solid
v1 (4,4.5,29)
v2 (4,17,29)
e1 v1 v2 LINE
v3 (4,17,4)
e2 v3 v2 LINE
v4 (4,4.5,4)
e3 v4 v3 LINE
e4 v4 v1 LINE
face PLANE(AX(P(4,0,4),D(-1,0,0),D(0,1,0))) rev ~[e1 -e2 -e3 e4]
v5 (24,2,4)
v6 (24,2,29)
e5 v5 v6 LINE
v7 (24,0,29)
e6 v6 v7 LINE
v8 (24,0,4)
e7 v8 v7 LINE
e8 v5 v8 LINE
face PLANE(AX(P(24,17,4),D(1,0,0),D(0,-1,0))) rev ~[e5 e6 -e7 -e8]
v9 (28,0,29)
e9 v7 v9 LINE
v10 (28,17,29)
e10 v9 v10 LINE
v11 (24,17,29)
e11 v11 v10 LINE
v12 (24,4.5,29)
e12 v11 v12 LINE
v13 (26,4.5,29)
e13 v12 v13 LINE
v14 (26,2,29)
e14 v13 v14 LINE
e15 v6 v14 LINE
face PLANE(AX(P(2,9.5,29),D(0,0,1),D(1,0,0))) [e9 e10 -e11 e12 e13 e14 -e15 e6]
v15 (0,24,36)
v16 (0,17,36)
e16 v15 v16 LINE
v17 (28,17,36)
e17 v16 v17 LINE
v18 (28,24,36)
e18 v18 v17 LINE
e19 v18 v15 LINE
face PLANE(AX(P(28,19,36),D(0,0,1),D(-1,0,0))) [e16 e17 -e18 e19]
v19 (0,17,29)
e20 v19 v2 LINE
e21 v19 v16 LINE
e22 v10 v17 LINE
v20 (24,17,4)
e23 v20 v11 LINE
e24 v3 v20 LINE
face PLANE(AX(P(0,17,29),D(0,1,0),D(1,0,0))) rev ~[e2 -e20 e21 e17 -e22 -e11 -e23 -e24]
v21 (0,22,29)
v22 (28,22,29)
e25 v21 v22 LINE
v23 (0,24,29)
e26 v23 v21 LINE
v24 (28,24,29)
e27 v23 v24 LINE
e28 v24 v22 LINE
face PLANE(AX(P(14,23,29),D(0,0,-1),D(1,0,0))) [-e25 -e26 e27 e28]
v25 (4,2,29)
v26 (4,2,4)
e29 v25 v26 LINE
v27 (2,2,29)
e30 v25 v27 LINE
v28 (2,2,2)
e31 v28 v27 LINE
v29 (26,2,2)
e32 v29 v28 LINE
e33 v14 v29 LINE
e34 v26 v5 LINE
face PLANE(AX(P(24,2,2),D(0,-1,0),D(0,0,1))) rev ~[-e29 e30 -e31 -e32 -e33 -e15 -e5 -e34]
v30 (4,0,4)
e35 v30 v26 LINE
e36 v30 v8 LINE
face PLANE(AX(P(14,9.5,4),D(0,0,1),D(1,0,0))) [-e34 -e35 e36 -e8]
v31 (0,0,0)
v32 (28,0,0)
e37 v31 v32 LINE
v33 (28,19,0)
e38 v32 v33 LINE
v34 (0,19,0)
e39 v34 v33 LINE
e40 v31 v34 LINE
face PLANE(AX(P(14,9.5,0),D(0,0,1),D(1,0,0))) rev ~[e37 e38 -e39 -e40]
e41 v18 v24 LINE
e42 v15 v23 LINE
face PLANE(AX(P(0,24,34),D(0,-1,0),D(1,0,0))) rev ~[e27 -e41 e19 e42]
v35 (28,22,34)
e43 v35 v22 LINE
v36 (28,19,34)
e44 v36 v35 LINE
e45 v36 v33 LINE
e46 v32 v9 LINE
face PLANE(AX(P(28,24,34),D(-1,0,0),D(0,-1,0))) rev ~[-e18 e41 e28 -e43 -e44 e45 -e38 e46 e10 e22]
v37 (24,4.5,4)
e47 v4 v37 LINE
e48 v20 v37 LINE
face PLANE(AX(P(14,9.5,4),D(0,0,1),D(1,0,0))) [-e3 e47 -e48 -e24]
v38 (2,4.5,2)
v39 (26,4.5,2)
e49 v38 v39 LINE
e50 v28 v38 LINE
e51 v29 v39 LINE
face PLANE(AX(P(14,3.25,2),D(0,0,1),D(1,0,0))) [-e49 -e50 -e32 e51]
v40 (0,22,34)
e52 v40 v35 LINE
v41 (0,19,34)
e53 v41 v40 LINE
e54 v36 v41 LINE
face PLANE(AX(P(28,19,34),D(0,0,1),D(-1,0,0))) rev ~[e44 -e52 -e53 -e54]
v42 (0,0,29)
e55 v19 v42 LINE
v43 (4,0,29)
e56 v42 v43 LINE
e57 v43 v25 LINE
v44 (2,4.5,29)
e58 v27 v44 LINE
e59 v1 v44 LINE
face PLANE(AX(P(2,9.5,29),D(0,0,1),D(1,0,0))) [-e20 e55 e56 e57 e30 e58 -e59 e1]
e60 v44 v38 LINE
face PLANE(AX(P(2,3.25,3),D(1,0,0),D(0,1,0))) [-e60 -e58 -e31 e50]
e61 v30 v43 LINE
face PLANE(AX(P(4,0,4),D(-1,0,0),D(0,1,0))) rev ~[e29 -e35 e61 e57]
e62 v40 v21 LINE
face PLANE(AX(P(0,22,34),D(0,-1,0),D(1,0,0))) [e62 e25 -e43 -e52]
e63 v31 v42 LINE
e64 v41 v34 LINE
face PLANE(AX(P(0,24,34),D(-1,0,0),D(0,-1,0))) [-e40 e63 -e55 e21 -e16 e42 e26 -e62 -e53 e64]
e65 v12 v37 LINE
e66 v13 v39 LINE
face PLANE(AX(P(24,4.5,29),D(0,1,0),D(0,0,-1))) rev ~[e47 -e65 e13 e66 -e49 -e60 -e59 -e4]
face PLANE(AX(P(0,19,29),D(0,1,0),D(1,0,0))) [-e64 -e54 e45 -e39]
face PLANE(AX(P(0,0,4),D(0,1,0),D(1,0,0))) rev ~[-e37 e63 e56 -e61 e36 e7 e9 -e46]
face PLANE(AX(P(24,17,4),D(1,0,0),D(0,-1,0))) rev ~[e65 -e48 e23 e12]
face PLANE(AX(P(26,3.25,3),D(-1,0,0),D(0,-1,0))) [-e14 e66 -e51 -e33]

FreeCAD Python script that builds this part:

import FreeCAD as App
import Part
import Sketcher
from FreeCAD import Vector
Q = App.Units.Quantity

doc = App.newDocument("Part")
body = doc.addObject("PartDesign::Body", "Body")

sketch1 = body.newObject("Sketcher::SketchObject", "Sketch")
sketch1.AttachmentSupport = (doc.getObject("XY_Plane"), [""])
sketch1.MapMode = "FlatFace"
sketch1.addGeometry(Part.LineSegment(Vector(0, 19, 0), Vector(0, 0, 0)), False)
sketch1.addGeometry(Part.LineSegment(Vector(0, 0, 0), Vector(28, 0, 0)), False)
sketch1.addGeometry(Part.LineSegment(Vector(28, 0, 0), Vector(28, 19, 0)), False)
sketch1.addGeometry(Part.LineSegment(Vector(28, 19, 0), Vector(0, 19, 0)), False)
sketch1.addConstraint(Sketcher.Constraint("Coincident", 0, 2, 1, 1))
sketch1.addConstraint(Sketcher.Constraint("Coincident", 1, 2, 2, 1))
sketch1.addConstraint(Sketcher.Constraint("Coincident", 2, 2, 3, 1))
sketch1.addConstraint(Sketcher.Constraint("Coincident", 3, 2, 0, 1))
sketch1.addConstraint(Sketcher.Constraint("Vertical", 0))
sketch1.addConstraint(Sketcher.Constraint("Horizontal", 1))
sketch1.addConstraint(Sketcher.Constraint("Vertical", 2))
sketch1.addConstraint(Sketcher.Constraint("Horizontal", 3))
sketch1.addConstraint(Sketcher.Constraint("Coincident", 0, 2, -1, 1))
sketch1.addConstraint(Sketcher.Constraint("DistanceX", 1, 1, 1, 2, Q("28 mm")))
sketch1.addConstraint(Sketcher.Constraint("DistanceY", 0, 2, 0, 1, Q("19 mm")))
pad1 = body.newObject("PartDesign::Pad", "Pad")
pad1.Profile = sketch1
pad1.Length = 4

sketch2 = body.newObject("Sketcher::SketchObject", "Sketch001")
sketch2.AttachmentSupport = (doc.getObject("XY_Plane"), [""])
sketch2.MapMode = "FlatFace"
sketch2.AttachmentOffset = App.Placement(Vector(0, 0, 4), App.Rotation())
sketch2.addGeometry(Part.LineSegment(Vector(0, 19, 0), Vector(0, 0, 0)), False)
sketch2.addGeometry(Part.LineSegment(Vector(0, 0, 0), Vector(4, 0, 0)), False)
sketch2.addGeometry(Part.LineSegment(Vector(4, 0, 0), Vector(4, 17, 0)), False)
sketch2.addGeometry(Part.LineSegment(Vector(4, 17, 0), Vector(24, 17, 0)), False)
sketch2.addGeometry(Part.LineSegment(Vector(24, 17, 0), Vector(24, 0, 0)), False)
sketch2.addGeometry(Part.LineSegment(Vector(24, 0, 0), Vector(28, 0, 0)), False)
sketch2.addGeometry(Part.LineSegment(Vector(28, 0, 0), Vector(28, 19, 0)), False)
sketch2.addGeometry(Part.LineSegment(Vector(28, 19, 0), Vector(0, 19, 0)), False)
sketch2.addConstraint(Sketcher.Constraint("Coincident", 0, 2, 1, 1))
sketch2.addConstraint(Sketcher.Constraint("Coincident", 1, 2, 2, 1))
sketch2.addConstraint(Sketcher.Constraint("Coincident", 2, 2, 3, 1))
sketch2.addConstraint(Sketcher.Constraint("Coincident", 3, 2, 4, 1))
sketch2.addConstraint(Sketcher.Constraint("Coincident", 4, 2, 5, 1))
sketch2.addConstraint(Sketcher.Constraint("Coincident", 5, 2, 6, 1))
sketch2.addConstraint(Sketcher.Constraint("Coincident", 6, 2, 7, 1))
sketch2.addConstraint(Sketcher.Constraint("Coincident", 7, 2, 0, 1))
sketch2.addConstraint(Sketcher.Constraint("Vertical", 0))
sketch2.addConstraint(Sketcher.Constraint("Horizontal", 1))
sketch2.addConstraint(Sketcher.Constraint("Vertical", 2))
sketch2.addConstraint(Sketcher.Constraint("Horizontal", 3))
sketch2.addConstraint(Sketcher.Constraint("Vertical", 4))
sketch2.addConstraint(Sketcher.Constraint("Horizontal", 5))
sketch2.addConstraint(Sketcher.Constraint("Vertical", 6))
sketch2.addConstraint(Sketcher.Constraint("Horizontal", 7))
sketch2.addConstraint(Sketcher.Constraint("Coincident", 0, 2, -1, 1))
sketch2.addConstraint(Sketcher.Constraint("PointOnObject", 4, 2, -1))
sketch2.addConstraint(Sketcher.Constraint("Equal", 1, 5))
sketch2.addConstraint(Sketcher.Constraint("DistanceX", 1, 1, 1, 2, Q("4 mm")))
sketch2.addConstraint(Sketcher.Constraint("DistanceX", 3, 1, 3, 2, Q("20 mm")))
sketch2.addConstraint(Sketcher.Constraint("DistanceY", 0, 2, 0, 1, Q("19 mm")))
sketch2.addConstraint(Sketcher.Constraint("DistanceY", 2, 1, 2, 2, Q("17 mm")))
pad2 = body.newObject("PartDesign::Pad", "Pad001")
pad2.Profile = sketch2
pad2.Length = 25

sketch3 = body.newObject("Sketcher::SketchObject", "Sketch002")
sketch3.AttachmentSupport = (doc.getObject("XY_Plane"), [""])
sketch3.MapMode = "FlatFace"
sketch3.AttachmentOffset = App.Placement(Vector(0, 0, 4), App.Rotation())
sketch3.addGeometry(Part.LineSegment(Vector(2, 4.5, 0), Vector(2, 2, 0)), False)
sketch3.addGeometry(Part.LineSegment(Vector(2, 2, 0), Vector(26, 2, 0)), False)
sketch3.addGeometry(Part.LineSegment(Vector(26, 2, 0), Vector(26, 4.5, 0)), False)
sketch3.addGeometry(Part.LineSegment(Vector(26, 4.5, 0), Vector(2, 4.5, 0)), False)
sketch3.addConstraint(Sketcher.Constraint("Coincident", 0, 2, 1, 1))
sketch3.addConstraint(Sketcher.Constraint("Coincident", 1, 2, 2, 1))
sketch3.addConstraint(Sketcher.Constraint("Coincident", 2, 2, 3, 1))
sketch3.addConstraint(Sketcher.Constraint("Coincident", 3, 2, 0, 1))
sketch3.addConstraint(Sketcher.Constraint("Vertical", 0))
sketch3.addConstraint(Sketcher.Constraint("Horizontal", 1))
sketch3.addConstraint(Sketcher.Constraint("Vertical", 2))
sketch3.addConstraint(Sketcher.Constraint("Horizontal", 3))
sketch3.addConstraint(Sketcher.Constraint("DistanceX", 1, 1, 1, 2, Q("24 mm")))
sketch3.addConstraint(Sketcher.Constraint("DistanceY", 0, 2, 0, 1, Q("2.5 mm")))
sketch3.addConstraint(Sketcher.Constraint("DistanceX", -1, 1, 0, 2, Q("2 mm")))
sketch3.addConstraint(Sketcher.Constraint("DistanceY", -1, 1, 0, 2, Q("2 mm")))
pocket1 = body.newObject("PartDesign::Pocket", "Pocket")
pocket1.Profile = sketch3
pocket1.Length = 2

sketch4 = body.newObject("Sketcher::SketchObject", "Sketch003")
sketch4.AttachmentSupport = (doc.getObject("YZ_Plane"), [""])
sketch4.MapMode = "FlatFace"
sketch4.AttachmentOffset = App.Placement(Vector(0, 0, 24), App.Rotation())
sketch4.addGeometry(Part.LineSegment(Vector(4.5, 2, 0), Vector(2, 2, 0)), False)
sketch4.addGeometry(Part.LineSegment(Vector(2, 2, 0), Vector(2, 29, 0)), False)
sketch4.addGeometry(Part.LineSegment(Vector(2, 29, 0), Vector(4.5, 29, 0)), False)
sketch4.addGeometry(Part.LineSegment(Vector(4.5, 29, 0), Vector(4.5, 2, 0)), False)
sketch4.addConstraint(Sketcher.Constraint("Coincident", 0, 2, 1, 1))
sketch4.addConstraint(Sketcher.Constraint("Coincident", 1, 2, 2, 1))
sketch4.addConstraint(Sketcher.Constraint("Coincident", 2, 2, 3, 1))
sketch4.addConstraint(Sketcher.Constraint("Coincident", 3, 2, 0, 1))
sketch4.addConstraint(Sketcher.Constraint("Horizontal", 0))
sketch4.addConstraint(Sketcher.Constraint("Vertical", 1))
sketch4.addConstraint(Sketcher.Constraint("Horizontal", 2))
sketch4.addConstraint(Sketcher.Constraint("Vertical", 3))
sketch4.addConstraint(Sketcher.Constraint("DistanceY", 1, 1, 1, 2, Q("27 mm")))
sketch4.addConstraint(Sketcher.Constraint("DistanceX", 0, 2, 0, 1, Q("2.5 mm")))
sketch4.addConstraint(Sketcher.Constraint("DistanceX", -1, 1, 0, 2, Q("2 mm")))
sketch4.addConstraint(Sketcher.Constraint("DistanceY", -1, 1, 0, 2, Q("2 mm")))
pocket2 = body.newObject("PartDesign::Pocket", "Pocket001")
pocket2.Profile = sketch4
pocket2.Length = 2
pocket2.Reversed = True

sketch5 = body.newObject("Sketcher::SketchObject", "Sketch004")
sketch5.AttachmentSupport = (doc.getObject("YZ_Plane"), [""])
sketch5.MapMode = "FlatFace"
sketch5.AttachmentOffset = App.Placement(Vector(0, 0, 4), App.Rotation())
sketch5.addGeometry(Part.LineSegment(Vector(2, 2, 0), Vector(4.5, 2, 0)), False)
sketch5.addGeometry(Part.LineSegment(Vector(4.5, 2, 0), Vector(4.5, 29, 0)), False)
sketch5.addGeometry(Part.LineSegment(Vector(4.5, 29, 0), Vector(2, 29, 0)), False)
sketch5.addGeometry(Part.LineSegment(Vector(2, 29, 0), Vector(2, 2, 0)), False)
sketch5.addConstraint(Sketcher.Constraint("Coincident", 0, 2, 1, 1))
sketch5.addConstraint(Sketcher.Constraint("Coincident", 1, 2, 2, 1))
sketch5.addConstraint(Sketcher.Constraint("Coincident", 2, 2, 3, 1))
sketch5.addConstraint(Sketcher.Constraint("Coincident", 3, 2, 0, 1))
sketch5.addConstraint(Sketcher.Constraint("Horizontal", 0))
sketch5.addConstraint(Sketcher.Constraint("Vertical", 1))
sketch5.addConstraint(Sketcher.Constraint("Horizontal", 2))
sketch5.addConstraint(Sketcher.Constraint("Vertical", 3))
sketch5.addConstraint(Sketcher.Constraint("DistanceY", 1, 1, 1, 2, Q("27 mm")))
sketch5.addConstraint(Sketcher.Constraint("DistanceX", 0, 1, 0, 2, Q("2.5 mm")))
sketch5.addConstraint(Sketcher.Constraint("DistanceY", -1, 1, 0, 2, Q("2 mm")))
sketch5.addConstraint(Sketcher.Constraint("DistanceX", -1, 1, 2, 2, Q("2 mm")))
pocket3 = body.newObject("PartDesign::Pocket", "Pocket002")
pocket3.Profile = sketch5
pocket3.Length = 2

sketch6 = body.newObject("Sketcher::SketchObject", "Sketch005")
sketch6.AttachmentSupport = (doc.getObject("XY_Plane"), [""])
sketch6.MapMode = "FlatFace"
sketch6.AttachmentOffset = App.Placement(Vector(0, 0, 29), App.Rotation())
sketch6.addGeometry(Part.LineSegment(Vector(0, 19, 0), Vector(0, 17, 0)), False)
sketch6.addGeometry(Part.LineSegment(Vector(0, 17, 0), Vector(28, 17, 0)), False)
sketch6.addGeometry(Part.LineSegment(Vector(28, 17, 0), Vector(28, 19, 0)), False)
sketch6.addGeometry(Part.LineSegment(Vector(28, 19, 0), Vector(0, 19, 0)), False)
sketch6.addConstraint(Sketcher.Constraint("Coincident", 0, 2, 1, 1))
sketch6.addConstraint(Sketcher.Constraint("Coincident", 1, 2, 2, 1))
sketch6.addConstraint(Sketcher.Constraint("Coincident", 2, 2, 3, 1))
sketch6.addConstraint(Sketcher.Constraint("Coincident", 3, 2, 0, 1))
sketch6.addConstraint(Sketcher.Constraint("Vertical", 0))
sketch6.addConstraint(Sketcher.Constraint("Horizontal", 1))
sketch6.addConstraint(Sketcher.Constraint("Vertical", 2))
sketch6.addConstraint(Sketcher.Constraint("Horizontal", 3))
sketch6.addConstraint(Sketcher.Constraint("PointOnObject", 0, 2, -2))
sketch6.addConstraint(Sketcher.Constraint("DistanceX", 1, 1, 1, 2, Q("28 mm")))
sketch6.addConstraint(Sketcher.Constraint("DistanceY", 0, 2, 0, 1, Q("2 mm")))
sketch6.addConstraint(Sketcher.Constraint("DistanceY", -1, 1, 0, 2, Q("17 mm")))
pad3 = body.newObject("PartDesign::Pad", "Pad002")
pad3.Profile = sketch6
pad3.Length = 7

sketch7 = body.newObject("Sketcher::SketchObject", "Sketch006")
sketch7.AttachmentSupport = (doc.getObject("XZ_Plane"), [""])
sketch7.MapMode = "FlatFace"
sketch7.AttachmentOffset = App.Placement(Vector(0, 0, -19), App.Rotation())
sketch7.addGeometry(Part.LineSegment(Vector(28, 36, 0), Vector(28, 34, 0)), False)
sketch7.addGeometry(Part.LineSegment(Vector(28, 34, 0), Vector(0, 34, 0)), False)
sketch7.addGeometry(Part.LineSegment(Vector(0, 34, 0), Vector(0, 36, 0)), False)
sketch7.addGeometry(Part.LineSegment(Vector(0, 36, 0), Vector(28, 36, 0)), False)
sketch7.addConstraint(Sketcher.Constraint("Coincident", 0, 2, 1, 1))
sketch7.addConstraint(Sketcher.Constraint("Coincident", 1, 2, 2, 1))
sketch7.addConstraint(Sketcher.Constraint("Coincident", 2, 2, 3, 1))
sketch7.addConstraint(Sketcher.Constraint("Coincident", 3, 2, 0, 1))
sketch7.addConstraint(Sketcher.Constraint("Vertical", 0))
sketch7.addConstraint(Sketcher.Constraint("Horizontal", 1))
sketch7.addConstraint(Sketcher.Constraint("Vertical", 2))
sketch7.addConstraint(Sketcher.Constraint("Horizontal", 3))
sketch7.addConstraint(Sketcher.Constraint("PointOnObject", 1, 2, -2))
sketch7.addConstraint(Sketcher.Constraint("DistanceX", 1, 2, 1, 1, Q("28 mm")))
sketch7.addConstraint(Sketcher.Constraint("DistanceY", 0, 2, 0, 1, Q("2 mm")))
sketch7.addConstraint(Sketcher.Constraint("DistanceY", -1, 1, 0, 2, Q("34 mm")))
pad4 = body.newObject("PartDesign::Pad", "Pad003")
pad4.Profile = sketch7
pad4.Length = 5
pad4.Reversed = True

sketch8 = body.newObject("Sketcher::SketchObject", "Sketch007")
sketch8.AttachmentSupport = (doc.getObject("XY_Plane"), [""])
sketch8.MapMode = "FlatFace"
sketch8.AttachmentOffset = App.Placement(Vector(0, 0, 34), App.Rotation())
sketch8.addGeometry(Part.LineSegment(Vector(0, 22, 0), Vector(0, 24, 0)), False)
sketch8.addGeometry(Part.LineSegment(Vector(0, 24, 0), Vector(28, 24, 0)), False)
sketch8.addGeometry(Part.LineSegment(Vector(28, 24, 0), Vector(28, 22, 0)), False)
sketch8.addGeometry(Part.LineSegment(Vector(28, 22, 0), Vector(0, 22, 0)), False)
sketch8.addConstraint(Sketcher.Constraint("Coincident", 0, 2, 1, 1))
sketch8.addConstraint(Sketcher.Constraint("Coincident", 1, 2, 2, 1))
sketch8.addConstraint(Sketcher.Constraint("Coincident", 2, 2, 3, 1))
sketch8.addConstraint(Sketcher.Constraint("Coincident", 3, 2, 0, 1))
sketch8.addConstraint(Sketcher.Constraint("Vertical", 0))
sketch8.addConstraint(Sketcher.Constraint("Horizontal", 1))
sketch8.addConstraint(Sketcher.Constraint("Vertical", 2))
sketch8.addConstraint(Sketcher.Constraint("Horizontal", 3))
sketch8.addConstraint(Sketcher.Constraint("PointOnObject", 0, 2, -2))
sketch8.addConstraint(Sketcher.Constraint("DistanceX", 1, 1, 1, 2, Q("28 mm")))
sketch8.addConstraint(Sketcher.Constraint("DistanceY", 0, 1, 0, 2, Q("2 mm")))
sketch8.addConstraint(Sketcher.Constraint("DistanceY", -1, 1, 0, 2, Q("24 mm")))
pad5 = body.newObject("PartDesign::Pad", "Pad004")
pad5.Profile = sketch8
pad5.Length = 5
pad5.Reversed = True

doc.recompute()
